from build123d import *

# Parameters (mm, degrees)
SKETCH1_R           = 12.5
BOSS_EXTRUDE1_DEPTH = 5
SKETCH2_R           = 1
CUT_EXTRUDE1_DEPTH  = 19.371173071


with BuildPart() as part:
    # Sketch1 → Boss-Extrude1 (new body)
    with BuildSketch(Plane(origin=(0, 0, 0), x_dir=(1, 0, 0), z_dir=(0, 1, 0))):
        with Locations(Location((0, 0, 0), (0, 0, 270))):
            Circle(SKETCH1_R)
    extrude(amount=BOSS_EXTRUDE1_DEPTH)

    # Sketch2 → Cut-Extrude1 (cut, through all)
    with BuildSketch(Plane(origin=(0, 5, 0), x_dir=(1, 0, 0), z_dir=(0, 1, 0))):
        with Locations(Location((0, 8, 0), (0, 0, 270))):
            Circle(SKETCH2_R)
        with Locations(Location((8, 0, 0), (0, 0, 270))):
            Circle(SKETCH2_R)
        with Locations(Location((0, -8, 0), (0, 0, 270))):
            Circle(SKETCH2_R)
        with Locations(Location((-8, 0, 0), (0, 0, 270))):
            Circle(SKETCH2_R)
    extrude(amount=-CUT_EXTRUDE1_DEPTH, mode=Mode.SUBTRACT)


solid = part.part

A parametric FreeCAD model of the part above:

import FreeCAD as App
import Part
import Sketcher
Q = App.Units.Quantity

doc = App.newDocument("Part")
params = doc.addObject("Spreadsheet::Sheet", "Params")
for row, (alias, value) in enumerate([
    ("sketch1_diameter", "25 mm"),
    ("pad1_length", "5 mm"),
    ("sketch2_diameter", "2 mm"),
], start=1):
    params.set(f"A{row}", alias)
    params.set(f"B{row}", "=" + value)
    params.setAlias(f"B{row}", alias)

body = doc.addObject("PartDesign::Body", "Body")

# Sketch on XZ plane
sketch1 = body.newObject("Sketcher::SketchObject", "Sketch")
sketch1.AttachmentSupport = (doc.getObject("XZ_Plane"), [""])
sketch1.MapMode = "FlatFace"
sketch1.addGeometry(Part.Circle(App.Vector(0, 0, 0), App.Vector(0, 0, 1), 12), False)
sketch1.addConstraint(Sketcher.Constraint("Coincident", 0, 3, -1, 1))
sketch1.addConstraint(Sketcher.Constraint("Diameter", 0, Q("25 mm")))
sketch1.setExpression("Constraints[1]", "Params.sketch1_diameter")
pad1 = body.newObject("PartDesign::Pad", "Pad")
pad1.Profile = sketch1
pad1.setExpression("Length", "Params.pad1_length")
pad1.Reversed = True

# Sketch on XZ plane
sketch2 = body.newObject("Sketcher::SketchObject", "Sketch001")
sketch2.AttachmentSupport = (doc.getObject("XZ_Plane"), [""])
sketch2.MapMode = "FlatFace"
sketch2.AttachmentOffset = App.Placement(App.Vector(0, 0, -5), App.Rotation())
sketch2.addGeometry(Part.Circle(App.Vector(0, -8, 0), App.Vector(0, 0, 1), 1), False)
sketch2.addGeometry(Part.Circle(App.Vector(8, 0, 0), App.Vector(0, 0, 1), 1), False)
sketch2.addGeometry(Part.Circle(App.Vector(0, 8, 0), App.Vector(0, 0, 1), 1), False)
sketch2.addGeometry(Part.Circle(App.Vector(-8, 0, 0), App.Vector(0, 0, 1), 1), False)
sketch2.addConstraint(Sketcher.Constraint("Equal", 0, 1))
sketch2.addConstraint(Sketcher.Constraint("Equal", 1, 2))
sketch2.addConstraint(Sketcher.Constraint("Equal", 2, 3))
sketch2.addConstraint(Sketcher.Constraint("Symmetric", 0, 3, 2, 3, -1, 1))
sketch2.addConstraint(Sketcher.Constraint("Symmetric", 1, 3, 3, 3, -1, 1))
sketch2.addConstraint(Sketcher.Constraint("PointOnObject", 0, 3, -2))
sketch2.addConstraint(Sketcher.Constraint("PointOnObject", 1, 3, -1))
sketch2.addConstraint(Sketcher.Constraint("Diameter", 0, Q("2 mm")))
sketch2.addConstraint(Sketcher.Constraint("DistanceY", 0, 3, -1, 1, Q("8 mm")))
sketch2.addConstraint(Sketcher.Constraint("DistanceX", -1, 1, 1, 3, Q("8 mm")))
sketch2.setExpression("Constraints[7]", "Params.sketch2_diameter")
pocket1 = body.newObject("PartDesign::Pocket", "Pocket")
pocket1.Profile = sketch2
pocket1.Type = "ThroughAll"
pocket1.Reversed = True

doc.recompute()
